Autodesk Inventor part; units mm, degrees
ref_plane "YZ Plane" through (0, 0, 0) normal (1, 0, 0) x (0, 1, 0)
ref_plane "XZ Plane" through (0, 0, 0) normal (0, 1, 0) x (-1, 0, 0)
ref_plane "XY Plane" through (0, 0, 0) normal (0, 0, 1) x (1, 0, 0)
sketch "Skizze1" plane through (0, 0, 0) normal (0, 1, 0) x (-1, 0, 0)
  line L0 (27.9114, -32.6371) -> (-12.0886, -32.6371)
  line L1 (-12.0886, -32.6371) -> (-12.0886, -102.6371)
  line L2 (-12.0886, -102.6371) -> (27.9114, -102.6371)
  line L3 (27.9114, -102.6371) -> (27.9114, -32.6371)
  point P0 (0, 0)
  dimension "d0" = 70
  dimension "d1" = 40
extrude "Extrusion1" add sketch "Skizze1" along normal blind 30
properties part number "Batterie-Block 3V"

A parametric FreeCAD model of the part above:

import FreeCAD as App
import Part
import Sketcher


def add_polygon(sketch, points):
    """Adds a closed chain of lines whose ends are joined by coincident constraints."""
    first, n = sketch.GeometryCount, len(points)
    for a, b in zip(points, points[1:] + points[:1]):
        sketch.addGeometry(Part.LineSegment(App.Vector(*a, 0), App.Vector(*b, 0)), False)
    for i in range(n):
        sketch.addConstraint(Sketcher.Constraint("Coincident", first + i, 2, first + (i + 1) % n, 1))

doc = App.newDocument("Part")
params = doc.addObject("Spreadsheet::Sheet", "Params")
for row, (alias, value) in enumerate([
    ("sketch1_width", "40 mm"),
    ("sketch1_height", "70 mm"),
    ("pad1_length", "30 mm"),
], start=1):
    params.set(f"A{row}", alias)
    params.set(f"B{row}", "=" + value)
    params.setAlias(f"B{row}", alias)

body = doc.addObject("PartDesign::Body", "Body")

# Sketch on XZ plane
sketch1 = body.newObject("Sketcher::SketchObject", "Sketch")
sketch1.AttachmentSupport = (doc.getObject("XZ_Plane"), [""])
sketch1.MapMode = "FlatFace"
add_polygon(sketch1, [(-28, -103), (-28, -33), (12, -33), (12, -103)])  # lines 0-3
sketch1.addConstraint([
    Sketcher.Constraint("Vertical", 0),
    Sketcher.Constraint("Horizontal", 1),
    Sketcher.Constraint("Vertical", 2),
    Sketcher.Constraint("Horizontal", 3),
    Sketcher.Constraint("DistanceX", 1, 1, 1, 2, 40.0),
    Sketcher.Constraint("DistanceY", 0, 1, 0, 2, 70.0),
    Sketcher.Constraint("DistanceY", 0, 2, -1, 1, 32.637),
    Sketcher.Constraint("DistanceX", 0, 2, -1, 1, 27.9114),
])
sketch1.setExpression("Constraints[8]", "Params.sketch1_width")
sketch1.setExpression("Constraints[9]", "Params.sketch1_height")
pad1 = body.newObject("PartDesign::Pad", "Pad")
pad1.Profile = sketch1
pad1.setExpression("Length", "Params.pad1_length")
pad1.Reversed = True

doc.recompute()
